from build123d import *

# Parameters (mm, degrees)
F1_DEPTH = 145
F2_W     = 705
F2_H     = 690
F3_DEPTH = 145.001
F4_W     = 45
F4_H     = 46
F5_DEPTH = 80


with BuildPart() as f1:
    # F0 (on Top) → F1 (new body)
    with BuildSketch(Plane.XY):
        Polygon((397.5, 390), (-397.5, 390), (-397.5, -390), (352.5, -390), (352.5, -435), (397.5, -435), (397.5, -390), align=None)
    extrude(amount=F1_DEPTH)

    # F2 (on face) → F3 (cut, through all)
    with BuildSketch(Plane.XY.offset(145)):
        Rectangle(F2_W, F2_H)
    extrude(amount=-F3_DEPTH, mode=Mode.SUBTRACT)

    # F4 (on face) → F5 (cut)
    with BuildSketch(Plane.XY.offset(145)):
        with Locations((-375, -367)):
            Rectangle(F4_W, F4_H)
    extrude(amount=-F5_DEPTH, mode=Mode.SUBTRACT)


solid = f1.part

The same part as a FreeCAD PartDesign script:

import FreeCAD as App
import Part
import Sketcher
from FreeCAD import Vector
Q = App.Units.Quantity

doc = App.newDocument("Part")
params = doc.addObject("Spreadsheet::Sheet", "Params")
for row, (alias, value) in enumerate([
    ("sketch1_width", "795 mm"),
    ("sketch1_width2", "750 mm"),
    ("sketch1_height", "780 mm"),
    ("pad1_length", "145 mm"),
    ("sketch2_width", "705 mm"),
    ("sketch2_height", "690 mm"),
    ("sketch3_width", "45 mm"),
    ("sketch3_height", "46 mm"),
    ("pocket2_length", "80 mm"),
], start=1):
    params.set(f"A{row}", alias)
    params.set(f"B{row}", "=" + value)
    params.setAlias(f"B{row}", alias)

body = doc.addObject("PartDesign::Body", "Body")

# Sketch on XY plane
sketch1 = doc.addObject("Sketcher::SketchObject", "Sketch")
body.addObject(sketch1)
sketch1.AttachmentSupport = (doc.XY_Plane, [""])
sketch1.MapMode = "FlatFace"
sketch1.addGeometry([
    Part.LineSegment(Vector(397.5, 390, 0), Vector(-397.5, 390, 0)),  # 0
    Part.LineSegment(Vector(-397.5, 390, 0), Vector(-397.5, -390, 0)),  # 1
    Part.LineSegment(Vector(-397.5, -390, 0), Vector(352.5, -390, 0)),  # 2
    Part.LineSegment(Vector(352.5, -390, 0), Vector(352.5, -435, 0)),  # 3
    Part.LineSegment(Vector(352.5, -435, 0), Vector(397.5, -435, 0)),  # 4
    Part.LineSegment(Vector(397.5, -435, 0), Vector(397.5, 390, 0)),  # 5
], False)
sketch1.addConstraint([
    Sketcher.Constraint("Coincident", 0, 2, 1, 1),
    Sketcher.Constraint("Coincident", 1, 2, 2, 1),
    Sketcher.Constraint("Coincident", 2, 2, 3, 1),
    Sketcher.Constraint("Coincident", 3, 2, 4, 1),
    Sketcher.Constraint("Coincident", 4, 2, 5, 1),
    Sketcher.Constraint("Coincident", 5, 2, 0, 1),
    Sketcher.Constraint("Horizontal", 0),
    Sketcher.Constraint("Vertical", 1),
    Sketcher.Constraint("Horizontal", 2),
    Sketcher.Constraint("Vertical", 3),
    Sketcher.Constraint("Horizontal", 4),
    Sketcher.Constraint("Vertical", 5),
    Sketcher.Constraint("Symmetric", 1, 2, 5, 2, -1, 1),
    Sketcher.Constraint("Equal", 4, 3),
    Sketcher.Constraint("DistanceX", 0, 2, 0, 1, Q("795 mm")),
    Sketcher.Constraint("DistanceX", 2, 1, 2, 2, Q("750 mm")),
    Sketcher.Constraint("DistanceY", 1, 2, 1, 1, Q("780 mm")),
])
sketch1.setExpression("Constraints[14]", "Params.sketch1_width")
sketch1.setExpression("Constraints[15]", "Params.sketch1_width2")
sketch1.setExpression("Constraints[16]", "Params.sketch1_height")
pad1 = doc.addObject("PartDesign::Pad", "Pad")
body.addObject(pad1)
pad1.Profile = sketch1
pad1.setExpression("Length", "Params.pad1_length")

# Sketch on XY plane
sketch2 = doc.addObject("Sketcher::SketchObject", "Sketch001")
body.addObject(sketch2)
sketch2.AttachmentSupport = (doc.XY_Plane, [""])
sketch2.MapMode = "FlatFace"
sketch2.AttachmentOffset = App.Placement(Vector(0, 0, 145), App.Rotation())
sketch2.addGeometry([
    Part.LineSegment(Vector(-352.5, 345, 0), Vector(-352.5, -345, 0)),
    Part.LineSegment(Vector(-352.5, -345, 0), Vector(352.5, -345, 0)),
    Part.LineSegment(Vector(352.5, -345, 0), Vector(352.5, 345, 0)),
    Part.LineSegment(Vector(352.5, 345, 0), Vector(-352.5, 345, 0)),
], False)
sketch2.addConstraint([
    Sketcher.Constraint("Coincident", 0, 2, 1, 1),
    Sketcher.Constraint("Coincident", 1, 2, 2, 1),
    Sketcher.Constraint("Coincident", 2, 2, 3, 1),
    Sketcher.Constraint("Coincident", 3, 2, 0, 1),
    Sketcher.Constraint("Vertical", 0),
    Sketcher.Constraint("Horizontal", 1),
    Sketcher.Constraint("Vertical", 2),
    Sketcher.Constraint("Horizontal", 3),
    Sketcher.Constraint("Symmetric", 0, 2, 2, 2, -1, 1),
    Sketcher.Constraint("DistanceX", 1, 1, 1, 2, Q("705 mm")),
    Sketcher.Constraint("DistanceY", 0, 2, 0, 1, Q("690 mm")),
])
sketch2.setExpression("Constraints[9]", "Params.sketch2_width")
sketch2.setExpression("Constraints[10]", "Params.sketch2_height")
pocket1 = doc.addObject("PartDesign::Pocket", "Pocket")
body.addObject(pocket1)
pocket1.Profile = sketch2
pocket1.Type = "ThroughAll"

# Sketch on XY plane
sketch3 = doc.addObject("Sketcher::SketchObject", "Sketch002")
body.addObject(sketch3)
sketch3.AttachmentSupport = (doc.XY_Plane, [""])
sketch3.MapMode = "FlatFace"
sketch3.AttachmentOffset = App.Placement(Vector(0, 0, 145), App.Rotation())
sketch3.addGeometry([
    Part.LineSegment(Vector(-397.5, -344, 0), Vector(-397.5, -390, 0)),
    Part.LineSegment(Vector(-397.5, -390, 0), Vector(-352.5, -390, 0)),
    Part.LineSegment(Vector(-352.5, -390, 0), Vector(-352.5, -344, 0)),
    Part.LineSegment(Vector(-352.5, -344, 0), Vector(-397.5, -344, 0)),
], False)
sketch3.addConstraint([
    Sketcher.Constraint("Coincident", 0, 2, 1, 1),
    Sketcher.Constraint("Coincident", 1, 2, 2, 1),
    Sketcher.Constraint("Coincident", 2, 2, 3, 1),
    Sketcher.Constraint("Coincident", 3, 2, 0, 1),
    Sketcher.Constraint("Vertical", 0),
    Sketcher.Constraint("Horizontal", 1),
    Sketcher.Constraint("Vertical", 2),
    Sketcher.Constraint("Horizontal", 3),
    Sketcher.Constraint("DistanceX", 1, 1, 1, 2, Q("45 mm")),
    Sketcher.Constraint("DistanceY", 0, 2, 0, 1, Q("46 mm")),
    Sketcher.Constraint("DistanceY", 0, 2, -1, 1, Q("390 mm")),
    Sketcher.Constraint("DistanceX", 0, 2, -1, 1, Q("397.5 mm")),
])
sketch3.setExpression("Constraints[8]", "Params.sketch3_width")
sketch3.setExpression("Constraints[9]", "Params.sketch3_height")
pocket2 = doc.addObject("PartDesign::Pocket", "Pocket001")
body.addObject(pocket2)
pocket2.Profile = sketch3
pocket2.setExpression("Length", "Params.pocket2_length")

doc.recompute()
